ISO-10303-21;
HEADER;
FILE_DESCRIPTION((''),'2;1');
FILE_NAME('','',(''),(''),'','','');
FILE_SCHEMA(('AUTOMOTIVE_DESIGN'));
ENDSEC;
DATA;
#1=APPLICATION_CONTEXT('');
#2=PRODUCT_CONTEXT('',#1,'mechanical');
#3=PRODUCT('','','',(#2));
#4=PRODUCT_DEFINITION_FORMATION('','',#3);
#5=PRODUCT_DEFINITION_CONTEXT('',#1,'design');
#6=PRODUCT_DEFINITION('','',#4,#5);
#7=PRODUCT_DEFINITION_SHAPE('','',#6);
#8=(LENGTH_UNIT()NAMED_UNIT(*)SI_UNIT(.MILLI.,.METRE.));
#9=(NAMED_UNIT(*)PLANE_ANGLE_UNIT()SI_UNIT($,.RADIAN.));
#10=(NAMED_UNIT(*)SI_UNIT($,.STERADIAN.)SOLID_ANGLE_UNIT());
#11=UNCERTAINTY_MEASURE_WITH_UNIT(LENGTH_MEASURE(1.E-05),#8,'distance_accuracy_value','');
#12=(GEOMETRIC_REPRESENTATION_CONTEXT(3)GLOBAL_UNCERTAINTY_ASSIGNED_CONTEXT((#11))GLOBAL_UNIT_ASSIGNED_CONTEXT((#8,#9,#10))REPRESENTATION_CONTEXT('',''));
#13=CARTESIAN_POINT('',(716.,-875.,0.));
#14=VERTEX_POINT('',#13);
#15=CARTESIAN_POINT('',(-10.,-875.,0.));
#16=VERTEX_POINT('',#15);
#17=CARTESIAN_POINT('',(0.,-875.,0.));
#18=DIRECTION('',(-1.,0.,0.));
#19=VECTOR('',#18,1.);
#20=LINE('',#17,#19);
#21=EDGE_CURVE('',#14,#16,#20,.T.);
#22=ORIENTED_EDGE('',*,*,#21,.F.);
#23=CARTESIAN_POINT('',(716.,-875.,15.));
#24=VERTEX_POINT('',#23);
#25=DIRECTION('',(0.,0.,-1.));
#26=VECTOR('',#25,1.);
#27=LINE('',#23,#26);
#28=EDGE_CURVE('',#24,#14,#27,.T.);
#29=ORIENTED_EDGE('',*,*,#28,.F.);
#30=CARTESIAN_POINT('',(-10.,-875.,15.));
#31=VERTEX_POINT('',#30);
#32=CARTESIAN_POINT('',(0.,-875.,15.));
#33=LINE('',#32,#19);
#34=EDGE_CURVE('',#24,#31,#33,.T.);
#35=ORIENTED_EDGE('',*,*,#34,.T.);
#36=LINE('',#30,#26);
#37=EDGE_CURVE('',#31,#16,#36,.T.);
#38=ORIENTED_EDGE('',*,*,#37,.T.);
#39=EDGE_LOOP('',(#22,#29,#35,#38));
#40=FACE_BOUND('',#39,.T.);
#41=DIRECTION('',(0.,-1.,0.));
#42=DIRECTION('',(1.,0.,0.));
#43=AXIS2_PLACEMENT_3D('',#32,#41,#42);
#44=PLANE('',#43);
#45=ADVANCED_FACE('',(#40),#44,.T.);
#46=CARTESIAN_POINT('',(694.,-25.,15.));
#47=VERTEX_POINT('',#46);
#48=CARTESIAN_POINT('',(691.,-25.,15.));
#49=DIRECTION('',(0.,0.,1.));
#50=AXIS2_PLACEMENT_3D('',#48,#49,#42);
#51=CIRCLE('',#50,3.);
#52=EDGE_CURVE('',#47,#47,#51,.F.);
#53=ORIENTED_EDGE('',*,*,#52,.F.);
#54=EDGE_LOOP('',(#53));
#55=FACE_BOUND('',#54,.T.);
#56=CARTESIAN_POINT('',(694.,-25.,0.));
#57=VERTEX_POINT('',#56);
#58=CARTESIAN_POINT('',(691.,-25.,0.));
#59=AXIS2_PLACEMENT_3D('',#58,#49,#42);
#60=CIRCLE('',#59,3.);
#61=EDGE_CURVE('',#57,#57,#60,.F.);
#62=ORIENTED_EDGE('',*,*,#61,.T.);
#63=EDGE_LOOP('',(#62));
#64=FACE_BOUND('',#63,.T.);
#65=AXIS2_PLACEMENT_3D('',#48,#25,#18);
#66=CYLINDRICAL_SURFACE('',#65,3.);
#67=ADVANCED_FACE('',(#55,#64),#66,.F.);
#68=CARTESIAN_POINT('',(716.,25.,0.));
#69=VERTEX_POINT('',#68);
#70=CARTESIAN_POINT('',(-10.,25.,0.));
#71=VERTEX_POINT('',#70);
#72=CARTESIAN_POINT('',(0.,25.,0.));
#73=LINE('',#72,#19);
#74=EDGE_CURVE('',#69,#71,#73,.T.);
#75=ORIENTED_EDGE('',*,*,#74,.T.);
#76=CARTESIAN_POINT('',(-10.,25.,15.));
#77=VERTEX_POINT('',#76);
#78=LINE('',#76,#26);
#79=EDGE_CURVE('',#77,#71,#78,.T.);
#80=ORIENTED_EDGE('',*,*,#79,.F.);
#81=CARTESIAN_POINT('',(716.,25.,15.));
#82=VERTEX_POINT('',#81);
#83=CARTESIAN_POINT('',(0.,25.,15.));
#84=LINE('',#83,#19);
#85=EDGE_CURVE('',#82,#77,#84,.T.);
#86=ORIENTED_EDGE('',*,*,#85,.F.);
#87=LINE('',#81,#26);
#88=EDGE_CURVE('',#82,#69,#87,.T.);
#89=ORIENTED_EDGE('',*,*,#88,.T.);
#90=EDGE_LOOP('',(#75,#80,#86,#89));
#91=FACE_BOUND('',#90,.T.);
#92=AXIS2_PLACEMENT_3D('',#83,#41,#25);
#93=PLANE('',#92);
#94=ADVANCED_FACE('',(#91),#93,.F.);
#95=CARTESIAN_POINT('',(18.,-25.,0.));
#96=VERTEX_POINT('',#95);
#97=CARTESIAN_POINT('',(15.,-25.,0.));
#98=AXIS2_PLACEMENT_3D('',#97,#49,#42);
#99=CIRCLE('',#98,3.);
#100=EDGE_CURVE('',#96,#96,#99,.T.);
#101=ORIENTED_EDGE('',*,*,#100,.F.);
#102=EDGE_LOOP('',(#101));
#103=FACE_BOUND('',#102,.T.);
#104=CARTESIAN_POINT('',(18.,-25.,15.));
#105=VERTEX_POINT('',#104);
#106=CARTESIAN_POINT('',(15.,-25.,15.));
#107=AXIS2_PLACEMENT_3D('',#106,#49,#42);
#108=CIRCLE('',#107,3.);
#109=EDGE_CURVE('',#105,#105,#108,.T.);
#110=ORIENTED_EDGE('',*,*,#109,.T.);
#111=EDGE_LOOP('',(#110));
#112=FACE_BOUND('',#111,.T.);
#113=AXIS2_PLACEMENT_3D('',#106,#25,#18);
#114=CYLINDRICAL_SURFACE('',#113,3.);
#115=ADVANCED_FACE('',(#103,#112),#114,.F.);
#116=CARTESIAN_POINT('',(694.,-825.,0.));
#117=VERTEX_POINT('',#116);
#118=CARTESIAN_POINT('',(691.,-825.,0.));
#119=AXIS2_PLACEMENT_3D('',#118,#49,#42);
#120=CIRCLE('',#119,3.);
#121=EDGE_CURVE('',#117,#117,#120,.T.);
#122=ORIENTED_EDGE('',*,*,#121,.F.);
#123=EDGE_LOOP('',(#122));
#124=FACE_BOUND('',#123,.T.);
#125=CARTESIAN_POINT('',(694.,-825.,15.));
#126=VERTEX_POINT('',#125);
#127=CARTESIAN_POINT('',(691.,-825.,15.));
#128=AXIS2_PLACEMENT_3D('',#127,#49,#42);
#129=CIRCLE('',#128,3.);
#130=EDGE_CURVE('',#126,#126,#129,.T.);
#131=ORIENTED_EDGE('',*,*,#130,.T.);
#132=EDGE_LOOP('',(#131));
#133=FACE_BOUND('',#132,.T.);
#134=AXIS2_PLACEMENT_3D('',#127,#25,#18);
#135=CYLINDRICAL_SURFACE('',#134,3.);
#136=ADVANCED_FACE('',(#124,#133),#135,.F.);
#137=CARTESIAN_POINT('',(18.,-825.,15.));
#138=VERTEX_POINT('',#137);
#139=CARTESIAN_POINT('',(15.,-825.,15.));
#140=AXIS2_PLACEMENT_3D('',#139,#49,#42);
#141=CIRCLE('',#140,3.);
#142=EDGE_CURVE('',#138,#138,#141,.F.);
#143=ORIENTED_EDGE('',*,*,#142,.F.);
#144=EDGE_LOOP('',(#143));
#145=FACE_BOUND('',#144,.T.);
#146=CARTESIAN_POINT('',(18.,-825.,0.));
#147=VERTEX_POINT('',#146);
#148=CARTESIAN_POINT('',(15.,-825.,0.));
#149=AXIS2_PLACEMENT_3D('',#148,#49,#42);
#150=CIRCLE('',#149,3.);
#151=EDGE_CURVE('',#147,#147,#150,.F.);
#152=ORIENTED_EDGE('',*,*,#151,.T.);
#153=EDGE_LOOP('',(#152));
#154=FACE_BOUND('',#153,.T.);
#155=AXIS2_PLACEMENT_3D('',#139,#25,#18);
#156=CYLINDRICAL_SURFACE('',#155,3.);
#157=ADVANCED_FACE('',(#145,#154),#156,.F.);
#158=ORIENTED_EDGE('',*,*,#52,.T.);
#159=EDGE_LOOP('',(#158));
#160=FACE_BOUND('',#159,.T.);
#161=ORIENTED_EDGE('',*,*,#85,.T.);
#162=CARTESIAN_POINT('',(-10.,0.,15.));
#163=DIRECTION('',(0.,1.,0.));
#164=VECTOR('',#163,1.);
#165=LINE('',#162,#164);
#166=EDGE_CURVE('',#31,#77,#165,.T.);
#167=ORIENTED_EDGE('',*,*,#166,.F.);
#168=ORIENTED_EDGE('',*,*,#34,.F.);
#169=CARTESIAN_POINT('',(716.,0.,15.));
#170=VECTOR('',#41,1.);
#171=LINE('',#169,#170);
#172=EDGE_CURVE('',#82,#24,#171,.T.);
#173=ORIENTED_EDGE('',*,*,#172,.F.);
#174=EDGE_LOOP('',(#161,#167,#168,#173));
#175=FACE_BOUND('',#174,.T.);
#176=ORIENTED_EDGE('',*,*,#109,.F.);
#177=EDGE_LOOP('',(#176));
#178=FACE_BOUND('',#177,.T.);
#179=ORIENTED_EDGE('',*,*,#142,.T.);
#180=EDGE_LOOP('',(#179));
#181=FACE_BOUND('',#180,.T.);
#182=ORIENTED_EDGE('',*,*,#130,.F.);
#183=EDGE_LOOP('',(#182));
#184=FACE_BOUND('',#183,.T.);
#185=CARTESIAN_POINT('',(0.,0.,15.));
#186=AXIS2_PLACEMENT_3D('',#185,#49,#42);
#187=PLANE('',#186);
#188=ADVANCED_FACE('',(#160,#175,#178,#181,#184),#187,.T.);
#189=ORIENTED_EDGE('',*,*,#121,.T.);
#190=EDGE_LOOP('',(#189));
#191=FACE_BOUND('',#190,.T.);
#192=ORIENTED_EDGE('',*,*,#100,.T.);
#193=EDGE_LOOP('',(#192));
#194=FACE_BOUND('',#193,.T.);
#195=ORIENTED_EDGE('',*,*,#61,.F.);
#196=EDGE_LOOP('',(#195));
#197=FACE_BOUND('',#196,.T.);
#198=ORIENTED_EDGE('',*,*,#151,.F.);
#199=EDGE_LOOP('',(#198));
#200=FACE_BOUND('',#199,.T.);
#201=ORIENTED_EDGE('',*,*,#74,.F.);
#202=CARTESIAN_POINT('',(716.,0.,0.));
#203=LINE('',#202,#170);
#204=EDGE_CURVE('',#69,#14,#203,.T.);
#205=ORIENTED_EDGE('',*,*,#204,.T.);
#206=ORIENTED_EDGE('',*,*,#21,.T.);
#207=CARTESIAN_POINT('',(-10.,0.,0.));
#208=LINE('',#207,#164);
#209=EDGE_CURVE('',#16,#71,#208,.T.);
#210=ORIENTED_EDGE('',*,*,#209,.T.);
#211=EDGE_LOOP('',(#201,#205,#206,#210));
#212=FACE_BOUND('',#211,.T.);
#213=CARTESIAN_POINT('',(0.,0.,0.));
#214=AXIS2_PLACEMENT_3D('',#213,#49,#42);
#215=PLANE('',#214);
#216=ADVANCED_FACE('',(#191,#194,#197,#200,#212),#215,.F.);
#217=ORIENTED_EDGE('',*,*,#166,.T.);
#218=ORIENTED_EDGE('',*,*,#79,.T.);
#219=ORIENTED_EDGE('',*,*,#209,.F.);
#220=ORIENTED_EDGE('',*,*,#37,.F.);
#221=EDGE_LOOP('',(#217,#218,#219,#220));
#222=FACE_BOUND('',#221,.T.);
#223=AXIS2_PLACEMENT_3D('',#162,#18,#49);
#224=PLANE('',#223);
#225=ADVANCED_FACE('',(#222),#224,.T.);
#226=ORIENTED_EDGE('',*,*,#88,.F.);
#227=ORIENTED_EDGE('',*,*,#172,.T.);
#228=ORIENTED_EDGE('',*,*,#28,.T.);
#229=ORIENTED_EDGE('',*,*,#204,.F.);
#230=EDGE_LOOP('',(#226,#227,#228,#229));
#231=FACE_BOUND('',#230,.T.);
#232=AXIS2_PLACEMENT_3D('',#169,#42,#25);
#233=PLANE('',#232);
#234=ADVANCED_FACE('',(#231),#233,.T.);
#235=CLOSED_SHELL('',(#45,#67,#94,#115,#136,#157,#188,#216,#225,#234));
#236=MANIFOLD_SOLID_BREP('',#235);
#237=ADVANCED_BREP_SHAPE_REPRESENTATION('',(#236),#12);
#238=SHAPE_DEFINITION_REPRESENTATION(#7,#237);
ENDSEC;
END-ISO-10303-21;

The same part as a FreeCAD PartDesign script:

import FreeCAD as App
import Part
import Sketcher
from FreeCAD import Vector

doc = App.newDocument("Part")
body = doc.addObject("PartDesign::Body", "Body")

sketch1 = body.newObject("Sketcher::SketchObject", "Sketch")
sketch1.AttachmentSupport = (doc.getObject("XY_Plane"), [""])
sketch1.MapMode = "FlatFace"
sketch1.addGeometry(Part.LineSegment(Vector(-10, 25, 0), Vector(-10, -875, 0)), False)
sketch1.addGeometry(Part.LineSegment(Vector(-10, -875, 0), Vector(716, -875, 0)), False)
sketch1.addGeometry(Part.LineSegment(Vector(716, -875, 0), Vector(716, 25, 0)), False)
sketch1.addGeometry(Part.LineSegment(Vector(716, 25, 0), Vector(-10, 25, 0)), False)
sketch1.addGeometry(Part.Circle(Vector(691, -825, 0), Vector(0, 0, 1), 3), False)
sketch1.addGeometry(Part.Circle(Vector(15, -825, 0), Vector(0, 0, 1), 3), False)
sketch1.addGeometry(Part.Circle(Vector(691, -25, 0), Vector(0, 0, 1), 3), False)
sketch1.addGeometry(Part.Circle(Vector(15, -25, 0), Vector(0, 0, 1), 3), False)
sketch1.addConstraint(Sketcher.Constraint("Coincident", 0, 2, 1, 1))
sketch1.addConstraint(Sketcher.Constraint("Coincident", 1, 2, 2, 1))
sketch1.addConstraint(Sketcher.Constraint("Coincident", 2, 2, 3, 1))
sketch1.addConstraint(Sketcher.Constraint("Coincident", 3, 2, 0, 1))
sketch1.addConstraint(Sketcher.Constraint("Vertical", 0))
sketch1.addConstraint(Sketcher.Constraint("Horizontal", 1))
sketch1.addConstraint(Sketcher.Constraint("Vertical", 2))
sketch1.addConstraint(Sketcher.Constraint("Horizontal", 3))
sketch1.addConstraint(Sketcher.Constraint("Equal", 4, 5))
sketch1.addConstraint(Sketcher.Constraint("Equal", 5, 6))
sketch1.addConstraint(Sketcher.Constraint("Equal", 6, 7))
sketch1.addConstraint(Sketcher.Constraint("Horizontal", 4, 3, 5, 3))
sketch1.addConstraint(Sketcher.Constraint("Horizontal", 6, 3, 7, 3))
sketch1.addConstraint(Sketcher.Constraint("Vertical", 4, 3, 6, 3))
sketch1.addConstraint(Sketcher.Constraint("Vertical", 5, 3, 7, 3))
sketch1.addConstraint(Sketcher.Constraint("Diameter", 4, 6.0))
sketch1.addConstraint(Sketcher.Constraint("DistanceX", 1, 1, 1, 2, 726.0))
sketch1.addConstraint(Sketcher.Constraint("DistanceY", 0, 2, 0, 1, 900.0))
sketch1.addConstraint(Sketcher.Constraint("DistanceX", -1, 1, 4, 3, 691.0))
sketch1.addConstraint(Sketcher.Constraint("DistanceY", 4, 3, -1, 1, 825.0))
sketch1.addConstraint(Sketcher.Constraint("DistanceX", -1, 1, 5, 3, 15.0))
sketch1.addConstraint(Sketcher.Constraint("DistanceY", 6, 3, -1, 1, 25.0))
sketch1.addConstraint(Sketcher.Constraint("DistanceX", 0, 2, -1, 1, 10.0))
sketch1.addConstraint(Sketcher.Constraint("DistanceY", 0, 2, -1, 1, 875.0))
pad1 = body.newObject("PartDesign::Pad", "Pad")
pad1.Profile = sketch1
pad1.Length = 15

doc.recompute()
